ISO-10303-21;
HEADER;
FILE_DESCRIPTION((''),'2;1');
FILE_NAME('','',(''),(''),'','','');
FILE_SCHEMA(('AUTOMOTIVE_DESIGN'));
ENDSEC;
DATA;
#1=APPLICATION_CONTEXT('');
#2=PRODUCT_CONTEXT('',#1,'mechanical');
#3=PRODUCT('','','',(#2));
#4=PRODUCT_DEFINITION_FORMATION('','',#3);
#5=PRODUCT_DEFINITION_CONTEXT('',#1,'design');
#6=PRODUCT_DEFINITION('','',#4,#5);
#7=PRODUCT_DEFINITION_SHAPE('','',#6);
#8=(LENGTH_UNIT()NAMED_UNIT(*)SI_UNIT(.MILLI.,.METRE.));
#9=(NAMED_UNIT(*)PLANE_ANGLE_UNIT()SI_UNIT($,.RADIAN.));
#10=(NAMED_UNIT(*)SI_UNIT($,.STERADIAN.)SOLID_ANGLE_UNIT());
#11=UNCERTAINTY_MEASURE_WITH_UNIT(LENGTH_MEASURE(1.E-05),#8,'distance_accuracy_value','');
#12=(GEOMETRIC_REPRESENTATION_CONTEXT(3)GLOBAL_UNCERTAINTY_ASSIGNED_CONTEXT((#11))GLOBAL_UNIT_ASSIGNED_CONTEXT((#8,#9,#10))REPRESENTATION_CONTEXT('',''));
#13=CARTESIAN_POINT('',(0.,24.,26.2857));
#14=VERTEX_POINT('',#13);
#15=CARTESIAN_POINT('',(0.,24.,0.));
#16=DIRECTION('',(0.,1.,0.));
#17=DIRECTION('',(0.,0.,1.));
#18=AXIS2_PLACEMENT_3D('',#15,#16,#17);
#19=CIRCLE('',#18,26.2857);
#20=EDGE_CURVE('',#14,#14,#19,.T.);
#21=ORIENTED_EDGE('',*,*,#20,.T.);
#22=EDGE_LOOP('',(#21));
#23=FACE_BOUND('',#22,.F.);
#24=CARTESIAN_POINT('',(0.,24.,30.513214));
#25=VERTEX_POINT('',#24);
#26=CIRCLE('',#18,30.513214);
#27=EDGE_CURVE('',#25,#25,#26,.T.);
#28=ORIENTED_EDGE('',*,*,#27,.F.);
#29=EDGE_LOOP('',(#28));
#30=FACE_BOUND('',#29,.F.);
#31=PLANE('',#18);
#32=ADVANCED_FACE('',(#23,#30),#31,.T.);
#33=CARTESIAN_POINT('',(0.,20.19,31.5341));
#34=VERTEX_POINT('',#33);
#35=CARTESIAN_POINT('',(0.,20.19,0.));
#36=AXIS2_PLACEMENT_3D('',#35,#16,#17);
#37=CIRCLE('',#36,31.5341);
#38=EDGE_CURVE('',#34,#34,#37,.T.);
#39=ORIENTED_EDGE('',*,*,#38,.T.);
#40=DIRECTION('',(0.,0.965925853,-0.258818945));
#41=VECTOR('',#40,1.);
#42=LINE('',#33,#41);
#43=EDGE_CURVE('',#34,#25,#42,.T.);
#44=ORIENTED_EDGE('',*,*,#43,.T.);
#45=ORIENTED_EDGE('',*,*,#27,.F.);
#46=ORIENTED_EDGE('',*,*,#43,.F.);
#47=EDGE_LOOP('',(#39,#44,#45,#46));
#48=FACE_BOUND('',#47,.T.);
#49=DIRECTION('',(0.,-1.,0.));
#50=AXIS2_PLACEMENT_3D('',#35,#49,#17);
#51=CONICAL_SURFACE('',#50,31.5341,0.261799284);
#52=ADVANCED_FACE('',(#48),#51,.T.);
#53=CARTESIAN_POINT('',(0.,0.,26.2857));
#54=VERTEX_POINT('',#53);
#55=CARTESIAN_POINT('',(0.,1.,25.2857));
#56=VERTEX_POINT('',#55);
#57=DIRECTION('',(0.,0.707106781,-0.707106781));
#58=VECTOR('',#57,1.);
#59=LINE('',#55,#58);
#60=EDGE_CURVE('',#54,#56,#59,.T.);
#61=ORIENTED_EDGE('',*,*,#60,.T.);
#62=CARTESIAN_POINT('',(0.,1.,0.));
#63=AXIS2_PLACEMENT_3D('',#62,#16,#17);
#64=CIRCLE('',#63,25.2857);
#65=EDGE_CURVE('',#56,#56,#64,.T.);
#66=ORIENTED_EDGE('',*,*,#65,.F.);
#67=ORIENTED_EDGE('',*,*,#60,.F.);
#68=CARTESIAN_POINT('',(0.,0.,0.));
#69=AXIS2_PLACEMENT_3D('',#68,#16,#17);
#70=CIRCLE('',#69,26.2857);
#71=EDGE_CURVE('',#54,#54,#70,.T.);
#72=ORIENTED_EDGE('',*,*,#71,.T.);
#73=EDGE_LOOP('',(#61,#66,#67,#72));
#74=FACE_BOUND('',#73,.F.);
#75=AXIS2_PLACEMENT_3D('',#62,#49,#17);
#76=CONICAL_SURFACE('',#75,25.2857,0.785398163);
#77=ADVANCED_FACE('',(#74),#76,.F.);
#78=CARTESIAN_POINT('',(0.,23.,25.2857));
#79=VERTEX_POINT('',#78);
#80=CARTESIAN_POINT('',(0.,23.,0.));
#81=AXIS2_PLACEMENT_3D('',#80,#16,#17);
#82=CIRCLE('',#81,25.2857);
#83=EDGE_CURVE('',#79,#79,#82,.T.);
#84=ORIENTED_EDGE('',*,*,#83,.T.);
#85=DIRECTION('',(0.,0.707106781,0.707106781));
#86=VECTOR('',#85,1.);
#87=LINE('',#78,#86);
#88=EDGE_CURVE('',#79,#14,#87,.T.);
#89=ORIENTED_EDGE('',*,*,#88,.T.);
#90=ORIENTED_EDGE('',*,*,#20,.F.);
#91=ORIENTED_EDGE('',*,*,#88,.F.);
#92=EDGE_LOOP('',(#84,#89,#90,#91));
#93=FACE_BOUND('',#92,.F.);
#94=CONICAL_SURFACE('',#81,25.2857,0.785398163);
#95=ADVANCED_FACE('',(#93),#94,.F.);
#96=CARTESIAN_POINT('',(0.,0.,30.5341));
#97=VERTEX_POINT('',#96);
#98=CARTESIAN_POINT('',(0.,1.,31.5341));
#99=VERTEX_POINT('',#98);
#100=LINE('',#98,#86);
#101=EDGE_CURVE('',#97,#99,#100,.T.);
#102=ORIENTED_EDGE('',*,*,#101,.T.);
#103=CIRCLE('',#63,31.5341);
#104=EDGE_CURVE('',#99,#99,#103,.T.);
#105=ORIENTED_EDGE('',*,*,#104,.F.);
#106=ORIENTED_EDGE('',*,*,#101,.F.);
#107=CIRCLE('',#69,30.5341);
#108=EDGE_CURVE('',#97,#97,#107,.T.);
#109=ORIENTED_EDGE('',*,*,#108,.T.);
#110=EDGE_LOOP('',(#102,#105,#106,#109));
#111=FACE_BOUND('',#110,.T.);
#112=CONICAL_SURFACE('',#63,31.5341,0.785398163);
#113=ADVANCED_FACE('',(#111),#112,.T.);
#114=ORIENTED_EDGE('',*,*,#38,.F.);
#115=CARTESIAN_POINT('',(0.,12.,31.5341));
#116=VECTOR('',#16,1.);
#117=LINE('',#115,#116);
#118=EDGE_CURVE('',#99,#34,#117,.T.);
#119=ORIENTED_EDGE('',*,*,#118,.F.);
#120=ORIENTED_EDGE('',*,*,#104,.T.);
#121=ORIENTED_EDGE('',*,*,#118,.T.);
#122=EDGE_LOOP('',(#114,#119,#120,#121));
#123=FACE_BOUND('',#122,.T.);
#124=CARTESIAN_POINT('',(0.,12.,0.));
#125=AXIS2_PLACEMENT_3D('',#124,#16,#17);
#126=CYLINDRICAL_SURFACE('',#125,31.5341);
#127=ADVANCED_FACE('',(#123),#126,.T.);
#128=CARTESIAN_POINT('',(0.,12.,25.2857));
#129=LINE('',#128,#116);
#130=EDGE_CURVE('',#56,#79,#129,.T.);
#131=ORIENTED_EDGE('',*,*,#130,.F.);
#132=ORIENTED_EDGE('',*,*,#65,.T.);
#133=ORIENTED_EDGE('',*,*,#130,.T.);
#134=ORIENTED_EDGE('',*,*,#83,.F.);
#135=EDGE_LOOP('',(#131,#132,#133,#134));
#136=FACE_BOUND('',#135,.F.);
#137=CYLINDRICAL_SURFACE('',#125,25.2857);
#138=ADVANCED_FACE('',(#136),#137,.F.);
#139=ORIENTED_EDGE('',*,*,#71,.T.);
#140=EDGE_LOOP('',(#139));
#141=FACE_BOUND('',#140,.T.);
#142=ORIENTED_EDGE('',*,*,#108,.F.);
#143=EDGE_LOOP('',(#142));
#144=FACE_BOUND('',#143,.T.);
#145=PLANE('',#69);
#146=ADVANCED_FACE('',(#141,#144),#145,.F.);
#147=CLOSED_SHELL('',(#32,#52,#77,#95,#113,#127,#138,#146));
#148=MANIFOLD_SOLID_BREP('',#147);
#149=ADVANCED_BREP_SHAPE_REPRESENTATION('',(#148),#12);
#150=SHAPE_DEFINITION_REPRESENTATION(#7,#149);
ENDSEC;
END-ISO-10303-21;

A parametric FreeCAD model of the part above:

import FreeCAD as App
import Part
import Sketcher

V = App.Vector
Q = App.Units.Quantity


def edges_at(feature, points):
    """Names of the edges that pass closest to the given points."""
    edges = feature.Shape.Edges
    near = lambda p: min(range(len(edges)), key=lambda i: edges[i].distToShape(Part.Vertex(*p))[0])
    return sorted({f"Edge{near(p) + 1}" for p in points})

doc = App.newDocument("Part")
params = doc.addObject("Spreadsheet::Sheet", "Params")
for row, (alias, value) in enumerate([
    ("sketch1_width", "24 mm"),
    ("revolution_angle", "360 deg"),
    ("chamfer_size", "1 mm"),
    ("chamfer2_size", "3.81 mm"),
    ("chamfer2_size2", "1.020886 mm"),
], start=1):
    params.set(f"A{row}", alias)
    params.set(f"B{row}", "=" + value)
    params.setAlias(f"B{row}", alias)

body = doc.addObject("PartDesign::Body", "Body")

# Sketch on YZ plane
sketch1 = body.newObject("Sketcher::SketchObject", "Sketch")
sketch1.AttachmentSupport = (doc.getObject("YZ_Plane"), [""])
sketch1.MapMode = "FlatFace"
sketch1.addGeometry([
    Part.LineSegment(V(0, 32, 0), V(0, 25, 0)),
    Part.LineSegment(V(0, 25, 0), V(24, 25, 0)),
    Part.LineSegment(V(24, 25, 0), V(24, 32, 0)),
    Part.LineSegment(V(24, 32, 0), V(0, 32, 0)),
], False)
sketch1.addConstraint([
    Sketcher.Constraint("Coincident", 0, 2, 1, 1),
    Sketcher.Constraint("Coincident", 1, 2, 2, 1),
    Sketcher.Constraint("Coincident", 2, 2, 3, 1),
    Sketcher.Constraint("Coincident", 3, 2, 0, 1),
    Sketcher.Constraint("Vertical", 0),
    Sketcher.Constraint("Horizontal", 1),
    Sketcher.Constraint("Vertical", 2),
    Sketcher.Constraint("Horizontal", 3),
    Sketcher.Constraint("PointOnObject", 0, 2, -2),
    Sketcher.Constraint("DistanceX", 1, 1, 1, 2, Q("24 mm")),
    Sketcher.Constraint("DistanceY", 0, 2, 0, 1, Q("6.2484 mm")),
    Sketcher.Constraint("DistanceY", -1, 1, 0, 2, Q("25.2857 mm")),
])
sketch1.setExpression("Constraints[9]", "Params.sketch1_width")
revolution = body.newObject("PartDesign::Revolution", "Revolution")
revolution.Profile = sketch1
revolution.ReferenceAxis = (sketch1, ["H_Axis"])
revolution.setExpression("Angle", "Params.revolution_angle")
doc.recompute()

chamfer = body.newObject("PartDesign::Chamfer", "Chamfer")
chamfer.Base = (revolution, edges_at(revolution, [(0, 0, -25.286), (0, 0, -31.534), (0, 24, -25.286)]))
chamfer.setExpression("Size", "Params.chamfer_size")
doc.recompute()

chamfer2 = body.newObject("PartDesign::Chamfer", "Chamfer001")
chamfer2.Base = (chamfer, edges_at(chamfer, [(0, 24, -31.534)]))
chamfer2.ChamferType = "Two distances"
chamfer2.setExpression("Size", "Params.chamfer2_size")
chamfer2.setExpression("Size2", "Params.chamfer2_size2")

doc.recompute()
